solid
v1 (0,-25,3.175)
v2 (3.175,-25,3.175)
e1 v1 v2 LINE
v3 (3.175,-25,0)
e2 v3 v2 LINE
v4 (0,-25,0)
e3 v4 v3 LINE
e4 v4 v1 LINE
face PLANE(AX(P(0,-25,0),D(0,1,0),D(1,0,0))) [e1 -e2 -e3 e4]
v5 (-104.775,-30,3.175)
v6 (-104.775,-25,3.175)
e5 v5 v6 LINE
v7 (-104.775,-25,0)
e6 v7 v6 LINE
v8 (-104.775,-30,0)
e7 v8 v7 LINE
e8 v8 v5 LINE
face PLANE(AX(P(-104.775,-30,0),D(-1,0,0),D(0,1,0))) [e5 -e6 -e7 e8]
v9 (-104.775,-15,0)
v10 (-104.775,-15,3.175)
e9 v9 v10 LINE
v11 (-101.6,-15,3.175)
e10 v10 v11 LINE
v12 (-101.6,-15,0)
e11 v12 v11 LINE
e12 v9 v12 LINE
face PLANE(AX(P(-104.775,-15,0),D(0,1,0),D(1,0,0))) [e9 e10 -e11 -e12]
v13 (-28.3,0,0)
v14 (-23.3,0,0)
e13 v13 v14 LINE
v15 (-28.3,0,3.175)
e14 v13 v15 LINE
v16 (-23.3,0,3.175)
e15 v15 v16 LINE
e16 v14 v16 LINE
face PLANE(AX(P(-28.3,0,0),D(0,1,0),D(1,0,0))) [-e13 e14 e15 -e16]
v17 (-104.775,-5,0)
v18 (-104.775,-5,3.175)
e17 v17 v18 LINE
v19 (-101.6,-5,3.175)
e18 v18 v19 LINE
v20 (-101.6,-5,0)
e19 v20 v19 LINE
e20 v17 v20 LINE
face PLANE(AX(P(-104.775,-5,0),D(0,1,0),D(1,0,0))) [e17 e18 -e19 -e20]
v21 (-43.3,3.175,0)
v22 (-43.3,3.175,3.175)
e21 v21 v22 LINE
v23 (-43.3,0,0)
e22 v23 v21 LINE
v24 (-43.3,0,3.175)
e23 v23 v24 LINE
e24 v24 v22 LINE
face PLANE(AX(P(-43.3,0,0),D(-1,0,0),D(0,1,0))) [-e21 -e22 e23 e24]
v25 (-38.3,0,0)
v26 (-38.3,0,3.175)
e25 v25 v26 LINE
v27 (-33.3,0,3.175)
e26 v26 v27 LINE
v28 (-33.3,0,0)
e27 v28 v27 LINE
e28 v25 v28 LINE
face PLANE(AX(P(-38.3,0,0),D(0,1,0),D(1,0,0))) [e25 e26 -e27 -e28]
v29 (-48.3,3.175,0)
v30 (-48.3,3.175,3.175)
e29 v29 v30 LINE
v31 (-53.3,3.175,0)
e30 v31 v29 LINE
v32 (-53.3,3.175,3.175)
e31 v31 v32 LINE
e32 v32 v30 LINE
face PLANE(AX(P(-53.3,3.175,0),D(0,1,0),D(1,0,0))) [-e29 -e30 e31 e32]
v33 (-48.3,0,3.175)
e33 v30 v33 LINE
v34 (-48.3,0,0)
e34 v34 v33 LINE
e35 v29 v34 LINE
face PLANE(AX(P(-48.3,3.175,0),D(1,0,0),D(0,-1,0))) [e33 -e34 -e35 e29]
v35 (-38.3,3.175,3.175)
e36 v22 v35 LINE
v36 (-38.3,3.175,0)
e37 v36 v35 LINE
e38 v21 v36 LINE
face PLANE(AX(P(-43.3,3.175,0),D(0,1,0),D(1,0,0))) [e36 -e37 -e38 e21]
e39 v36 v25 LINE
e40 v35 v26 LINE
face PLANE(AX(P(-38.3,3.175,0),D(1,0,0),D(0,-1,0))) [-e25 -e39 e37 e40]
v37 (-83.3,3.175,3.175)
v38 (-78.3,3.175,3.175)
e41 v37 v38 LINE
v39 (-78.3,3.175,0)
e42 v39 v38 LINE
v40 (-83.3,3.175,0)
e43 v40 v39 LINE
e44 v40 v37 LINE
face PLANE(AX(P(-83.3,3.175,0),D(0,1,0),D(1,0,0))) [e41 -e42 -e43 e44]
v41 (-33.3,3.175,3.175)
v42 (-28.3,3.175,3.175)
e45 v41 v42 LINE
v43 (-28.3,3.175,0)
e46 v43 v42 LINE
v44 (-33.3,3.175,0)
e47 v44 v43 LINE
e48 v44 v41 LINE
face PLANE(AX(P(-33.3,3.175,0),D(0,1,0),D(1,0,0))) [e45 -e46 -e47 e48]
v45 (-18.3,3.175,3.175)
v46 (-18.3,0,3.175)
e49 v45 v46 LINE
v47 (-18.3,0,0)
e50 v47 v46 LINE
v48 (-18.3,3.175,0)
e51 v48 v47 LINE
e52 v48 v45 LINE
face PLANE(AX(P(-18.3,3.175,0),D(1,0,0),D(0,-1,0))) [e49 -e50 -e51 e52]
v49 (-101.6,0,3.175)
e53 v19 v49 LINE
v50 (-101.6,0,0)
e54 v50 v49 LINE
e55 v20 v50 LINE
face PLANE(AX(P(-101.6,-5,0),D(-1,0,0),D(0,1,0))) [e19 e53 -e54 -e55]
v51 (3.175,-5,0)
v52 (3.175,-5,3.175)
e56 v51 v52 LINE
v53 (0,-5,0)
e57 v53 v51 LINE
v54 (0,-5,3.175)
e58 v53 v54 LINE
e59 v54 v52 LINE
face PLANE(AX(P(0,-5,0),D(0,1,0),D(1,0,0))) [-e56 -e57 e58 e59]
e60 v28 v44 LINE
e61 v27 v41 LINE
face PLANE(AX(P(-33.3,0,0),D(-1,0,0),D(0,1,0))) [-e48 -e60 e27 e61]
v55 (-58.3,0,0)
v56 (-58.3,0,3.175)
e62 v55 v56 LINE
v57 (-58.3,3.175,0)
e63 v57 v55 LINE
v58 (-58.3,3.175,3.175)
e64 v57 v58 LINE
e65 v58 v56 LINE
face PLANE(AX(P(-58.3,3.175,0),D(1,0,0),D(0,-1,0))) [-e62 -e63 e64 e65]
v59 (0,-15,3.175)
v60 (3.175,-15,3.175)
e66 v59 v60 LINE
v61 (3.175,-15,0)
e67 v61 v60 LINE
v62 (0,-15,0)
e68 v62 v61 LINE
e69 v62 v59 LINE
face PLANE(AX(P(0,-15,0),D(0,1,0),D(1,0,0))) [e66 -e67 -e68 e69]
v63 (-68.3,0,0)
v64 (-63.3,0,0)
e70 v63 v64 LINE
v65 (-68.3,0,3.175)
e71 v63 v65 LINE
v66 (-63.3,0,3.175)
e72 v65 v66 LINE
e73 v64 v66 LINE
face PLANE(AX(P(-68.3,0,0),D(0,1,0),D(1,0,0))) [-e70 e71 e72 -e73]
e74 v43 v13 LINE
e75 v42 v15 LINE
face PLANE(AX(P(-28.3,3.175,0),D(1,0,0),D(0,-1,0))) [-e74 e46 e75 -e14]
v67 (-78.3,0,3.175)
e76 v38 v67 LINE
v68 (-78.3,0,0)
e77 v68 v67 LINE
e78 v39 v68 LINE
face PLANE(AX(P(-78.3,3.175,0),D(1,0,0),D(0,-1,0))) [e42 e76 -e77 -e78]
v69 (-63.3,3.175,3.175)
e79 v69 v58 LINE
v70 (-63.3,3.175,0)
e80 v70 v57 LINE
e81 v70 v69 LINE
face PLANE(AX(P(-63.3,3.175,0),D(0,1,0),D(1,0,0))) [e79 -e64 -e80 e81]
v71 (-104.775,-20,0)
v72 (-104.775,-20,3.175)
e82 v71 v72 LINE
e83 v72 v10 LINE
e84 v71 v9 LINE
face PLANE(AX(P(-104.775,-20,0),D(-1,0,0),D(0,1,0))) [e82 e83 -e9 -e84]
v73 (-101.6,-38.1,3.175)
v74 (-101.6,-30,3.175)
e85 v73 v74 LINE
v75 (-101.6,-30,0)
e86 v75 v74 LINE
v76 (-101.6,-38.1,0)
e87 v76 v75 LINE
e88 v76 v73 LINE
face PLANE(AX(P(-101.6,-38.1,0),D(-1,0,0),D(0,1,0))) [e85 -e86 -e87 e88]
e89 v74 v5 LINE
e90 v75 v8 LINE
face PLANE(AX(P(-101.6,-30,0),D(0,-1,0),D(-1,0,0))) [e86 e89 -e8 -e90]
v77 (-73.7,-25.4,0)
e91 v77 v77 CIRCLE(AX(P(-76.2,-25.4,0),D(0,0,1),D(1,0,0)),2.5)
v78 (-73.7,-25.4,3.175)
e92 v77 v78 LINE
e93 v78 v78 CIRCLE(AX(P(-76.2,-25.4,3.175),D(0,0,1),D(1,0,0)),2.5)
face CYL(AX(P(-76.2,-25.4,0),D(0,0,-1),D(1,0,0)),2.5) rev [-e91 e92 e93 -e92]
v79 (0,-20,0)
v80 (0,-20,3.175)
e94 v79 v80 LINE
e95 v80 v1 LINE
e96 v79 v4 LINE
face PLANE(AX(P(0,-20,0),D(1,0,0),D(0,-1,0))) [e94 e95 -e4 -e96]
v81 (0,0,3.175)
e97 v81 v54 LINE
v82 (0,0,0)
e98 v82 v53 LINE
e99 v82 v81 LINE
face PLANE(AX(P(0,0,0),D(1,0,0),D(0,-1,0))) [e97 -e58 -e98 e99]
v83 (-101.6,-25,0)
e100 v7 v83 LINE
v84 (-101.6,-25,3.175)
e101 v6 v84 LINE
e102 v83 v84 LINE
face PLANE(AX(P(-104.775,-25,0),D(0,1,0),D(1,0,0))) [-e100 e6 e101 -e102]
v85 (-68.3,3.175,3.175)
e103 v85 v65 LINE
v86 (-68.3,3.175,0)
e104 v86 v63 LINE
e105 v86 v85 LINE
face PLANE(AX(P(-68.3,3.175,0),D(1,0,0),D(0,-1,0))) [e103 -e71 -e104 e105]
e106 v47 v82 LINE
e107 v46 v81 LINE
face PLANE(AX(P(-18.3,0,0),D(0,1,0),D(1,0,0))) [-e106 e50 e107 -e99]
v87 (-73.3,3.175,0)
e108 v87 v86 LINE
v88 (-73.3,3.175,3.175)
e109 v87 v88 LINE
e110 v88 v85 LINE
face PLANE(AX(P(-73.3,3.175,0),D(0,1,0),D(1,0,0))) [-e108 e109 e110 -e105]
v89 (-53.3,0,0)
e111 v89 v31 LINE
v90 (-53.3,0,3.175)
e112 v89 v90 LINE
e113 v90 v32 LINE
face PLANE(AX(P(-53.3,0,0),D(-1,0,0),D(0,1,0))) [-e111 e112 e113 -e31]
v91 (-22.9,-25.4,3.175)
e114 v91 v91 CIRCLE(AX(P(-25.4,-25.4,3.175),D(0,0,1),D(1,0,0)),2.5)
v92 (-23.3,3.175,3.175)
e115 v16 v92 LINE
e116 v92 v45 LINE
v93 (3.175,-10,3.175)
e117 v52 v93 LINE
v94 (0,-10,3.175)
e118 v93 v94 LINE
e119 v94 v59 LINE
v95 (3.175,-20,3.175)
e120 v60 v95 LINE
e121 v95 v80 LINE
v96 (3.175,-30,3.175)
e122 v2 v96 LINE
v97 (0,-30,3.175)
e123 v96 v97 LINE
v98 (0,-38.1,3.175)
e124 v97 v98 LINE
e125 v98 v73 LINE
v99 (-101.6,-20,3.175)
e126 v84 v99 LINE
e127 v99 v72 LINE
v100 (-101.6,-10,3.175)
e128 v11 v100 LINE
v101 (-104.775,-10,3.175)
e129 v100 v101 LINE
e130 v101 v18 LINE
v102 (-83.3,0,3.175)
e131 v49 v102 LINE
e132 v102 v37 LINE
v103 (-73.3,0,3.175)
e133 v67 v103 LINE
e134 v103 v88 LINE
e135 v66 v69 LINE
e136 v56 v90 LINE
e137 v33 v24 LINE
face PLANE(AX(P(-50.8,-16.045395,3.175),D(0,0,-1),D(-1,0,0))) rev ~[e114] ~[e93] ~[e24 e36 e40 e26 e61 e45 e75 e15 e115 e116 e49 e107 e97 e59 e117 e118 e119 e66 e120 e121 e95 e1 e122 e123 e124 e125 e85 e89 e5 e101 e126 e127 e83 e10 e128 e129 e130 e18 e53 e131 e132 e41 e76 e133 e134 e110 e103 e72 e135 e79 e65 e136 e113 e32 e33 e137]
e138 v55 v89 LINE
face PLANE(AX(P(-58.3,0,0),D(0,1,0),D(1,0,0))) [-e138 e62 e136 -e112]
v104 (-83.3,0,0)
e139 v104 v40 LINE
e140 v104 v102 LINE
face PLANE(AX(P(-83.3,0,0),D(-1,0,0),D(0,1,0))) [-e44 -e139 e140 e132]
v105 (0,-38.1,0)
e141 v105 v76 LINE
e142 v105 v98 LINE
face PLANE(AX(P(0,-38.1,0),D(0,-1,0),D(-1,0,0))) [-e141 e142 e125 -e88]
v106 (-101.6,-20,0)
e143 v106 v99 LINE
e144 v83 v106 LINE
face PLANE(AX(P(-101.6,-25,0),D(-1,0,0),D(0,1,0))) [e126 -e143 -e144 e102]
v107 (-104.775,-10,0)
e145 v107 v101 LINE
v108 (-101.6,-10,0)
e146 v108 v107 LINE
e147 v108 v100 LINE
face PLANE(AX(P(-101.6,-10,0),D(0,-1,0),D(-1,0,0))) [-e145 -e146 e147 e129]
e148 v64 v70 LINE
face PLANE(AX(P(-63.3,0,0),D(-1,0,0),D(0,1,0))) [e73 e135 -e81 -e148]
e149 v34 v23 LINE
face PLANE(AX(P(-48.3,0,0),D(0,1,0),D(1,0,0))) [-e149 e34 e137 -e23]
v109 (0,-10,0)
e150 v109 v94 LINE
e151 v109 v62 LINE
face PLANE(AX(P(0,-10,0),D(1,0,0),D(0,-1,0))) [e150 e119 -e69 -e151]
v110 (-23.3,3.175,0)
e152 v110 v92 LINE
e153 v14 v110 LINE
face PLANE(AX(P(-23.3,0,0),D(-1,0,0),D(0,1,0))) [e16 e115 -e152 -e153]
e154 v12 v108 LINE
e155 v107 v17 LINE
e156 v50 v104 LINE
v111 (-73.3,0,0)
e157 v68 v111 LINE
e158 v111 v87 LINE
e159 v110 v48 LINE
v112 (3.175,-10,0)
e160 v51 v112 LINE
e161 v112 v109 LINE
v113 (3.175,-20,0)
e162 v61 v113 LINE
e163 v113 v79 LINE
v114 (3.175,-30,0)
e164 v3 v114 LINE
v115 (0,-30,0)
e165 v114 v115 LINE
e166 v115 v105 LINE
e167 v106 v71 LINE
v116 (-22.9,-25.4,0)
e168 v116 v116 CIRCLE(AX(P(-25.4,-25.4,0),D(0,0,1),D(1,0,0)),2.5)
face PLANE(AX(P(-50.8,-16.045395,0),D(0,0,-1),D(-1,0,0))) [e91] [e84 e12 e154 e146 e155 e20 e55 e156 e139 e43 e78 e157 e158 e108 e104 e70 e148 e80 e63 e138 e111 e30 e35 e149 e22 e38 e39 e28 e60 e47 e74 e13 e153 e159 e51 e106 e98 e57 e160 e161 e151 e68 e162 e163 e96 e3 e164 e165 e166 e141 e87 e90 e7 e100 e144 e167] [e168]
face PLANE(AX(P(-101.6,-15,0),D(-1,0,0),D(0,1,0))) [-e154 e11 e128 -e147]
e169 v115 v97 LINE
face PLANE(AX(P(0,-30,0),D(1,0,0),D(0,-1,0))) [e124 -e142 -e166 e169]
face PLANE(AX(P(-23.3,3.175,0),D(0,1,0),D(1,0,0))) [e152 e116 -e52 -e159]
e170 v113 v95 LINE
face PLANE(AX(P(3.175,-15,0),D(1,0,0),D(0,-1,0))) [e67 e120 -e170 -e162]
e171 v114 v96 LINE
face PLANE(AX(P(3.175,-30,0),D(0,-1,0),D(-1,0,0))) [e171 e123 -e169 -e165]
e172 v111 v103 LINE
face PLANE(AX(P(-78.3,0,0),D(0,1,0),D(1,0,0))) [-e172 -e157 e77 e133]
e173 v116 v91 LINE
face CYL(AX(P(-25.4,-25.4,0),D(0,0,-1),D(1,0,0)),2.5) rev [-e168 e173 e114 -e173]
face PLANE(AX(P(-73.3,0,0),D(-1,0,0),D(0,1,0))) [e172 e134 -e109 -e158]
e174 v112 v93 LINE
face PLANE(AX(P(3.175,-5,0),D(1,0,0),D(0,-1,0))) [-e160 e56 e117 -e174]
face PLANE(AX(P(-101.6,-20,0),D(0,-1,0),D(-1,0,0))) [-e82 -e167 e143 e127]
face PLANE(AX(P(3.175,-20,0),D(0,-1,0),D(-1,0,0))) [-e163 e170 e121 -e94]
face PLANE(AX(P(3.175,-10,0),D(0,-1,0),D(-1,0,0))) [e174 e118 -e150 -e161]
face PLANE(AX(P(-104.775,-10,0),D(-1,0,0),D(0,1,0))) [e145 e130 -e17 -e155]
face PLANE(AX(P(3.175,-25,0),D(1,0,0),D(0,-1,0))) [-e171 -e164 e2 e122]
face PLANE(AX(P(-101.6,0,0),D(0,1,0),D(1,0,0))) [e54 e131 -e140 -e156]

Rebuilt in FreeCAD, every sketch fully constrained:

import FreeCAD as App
import Part
import Sketcher

V = App.Vector

doc = App.newDocument("Part")
body = doc.addObject("PartDesign::Body", "Body")

sketch1 = body.newObject("Sketcher::SketchObject", "Sketch")
sketch1.AttachmentSupport = (doc.getObject("XY_Plane"), [""])
sketch1.MapMode = "FlatFace"
sketch1.addGeometry([
    Part.LineSegment(V(-83.3, 0, 0), V(-101.6, 0, 0)),
    Part.LineSegment(V(-101.6, 0, 0), V(-101.6, -5, 0)),
    Part.LineSegment(V(-101.6, -5, 0), V(-104.8, -5, 0)),
    Part.LineSegment(V(-104.8, -5, 0), V(-104.8, -10, 0)),
    Part.LineSegment(V(-104.8, -10, 0), V(-101.6, -10, 0)),
    Part.LineSegment(V(-101.6, -10, 0), V(-101.6, -15, 0)),
    Part.LineSegment(V(-101.6, -15, 0), V(-104.8, -15, 0)),
    Part.LineSegment(V(-104.8, -15, 0), V(-104.8, -20, 0)),
    Part.LineSegment(V(-104.8, -20, 0), V(-101.6, -20, 0)),
    Part.LineSegment(V(-101.6, -20, 0), V(-101.6, -25, 0)),
    Part.LineSegment(V(-101.6, -25, 0), V(-104.8, -25, 0)),
    Part.LineSegment(V(-104.8, -25, 0), V(-104.8, -30, 0)),
    Part.LineSegment(V(-104.8, -30, 0), V(-101.6, -30, 0)),
    Part.LineSegment(V(-101.6, -30, 0), V(-101.6, -38.1, 0)),
    Part.LineSegment(V(-101.6, -38.1, 0), V(0, -38.1, 0)),
    Part.LineSegment(V(0, -38.1, 0), V(0, -30, 0)),
    Part.LineSegment(V(0, -30, 0), V(3.2, -30, 0)),
    Part.LineSegment(V(3.2, -30, 0), V(3.2, -25, 0)),
    Part.LineSegment(V(3.2, -25, 0), V(0, -25, 0)),
    Part.LineSegment(V(0, -25, 0), V(0, -20, 0)),
    Part.LineSegment(V(0, -20, 0), V(3.2, -20, 0)),
    Part.LineSegment(V(3.2, -20, 0), V(3.2, -15, 0)),
    Part.LineSegment(V(3.2, -15, 0), V(0, -15, 0)),
    Part.LineSegment(V(0, -15, 0), V(0, -10, 0)),
    Part.LineSegment(V(0, -10, 0), V(3.2, -10, 0)),
    Part.LineSegment(V(3.2, -10, 0), V(3.2, -5, 0)),
    Part.LineSegment(V(3.2, -5, 0), V(0, -5, 0)),
    Part.LineSegment(V(0, -5, 0), V(0, 0, 0)),
    Part.LineSegment(V(0, 0, 0), V(-18.3, 0, 0)),
    Part.LineSegment(V(-18.3, 0, 0), V(-18.3, 3.2, 0)),
    Part.LineSegment(V(-18.3, 3.2, 0), V(-23.3, 3.2, 0)),
    Part.LineSegment(V(-23.3, 3.2, 0), V(-23.3, 0, 0)),
    Part.LineSegment(V(-23.3, 0, 0), V(-28.3, 0, 0)),
    Part.LineSegment(V(-28.3, 0, 0), V(-28.3, 3.2, 0)),
    Part.LineSegment(V(-28.3, 3.2, 0), V(-33.3, 3.2, 0)),
    Part.LineSegment(V(-33.3, 3.2, 0), V(-33.3, 0, 0)),
    Part.LineSegment(V(-33.3, 0, 0), V(-38.3, 0, 0)),
    Part.LineSegment(V(-38.3, 0, 0), V(-38.3, 3.2, 0)),
    Part.LineSegment(V(-38.3, 3.2, 0), V(-43.3, 3.2, 0)),
    Part.LineSegment(V(-43.3, 3.2, 0), V(-43.3, 0, 0)),
    Part.LineSegment(V(-43.3, 0, 0), V(-48.3, 0, 0)),
    Part.LineSegment(V(-48.3, 0, 0), V(-48.3, 3.2, 0)),
    Part.LineSegment(V(-48.3, 3.2, 0), V(-53.3, 3.2, 0)),
    Part.LineSegment(V(-53.3, 3.2, 0), V(-53.3, 0, 0)),
    Part.LineSegment(V(-53.3, 0, 0), V(-58.3, 0, 0)),
    Part.LineSegment(V(-58.3, 0, 0), V(-58.3, 3.2, 0)),
    Part.LineSegment(V(-58.3, 3.2, 0), V(-63.3, 3.2, 0)),
    Part.LineSegment(V(-63.3, 3.2, 0), V(-63.3, 0, 0)),
    Part.LineSegment(V(-63.3, 0, 0), V(-68.3, 0, 0)),
    Part.LineSegment(V(-68.3, 0, 0), V(-68.3, 3.2, 0)),
    Part.LineSegment(V(-68.3, 3.2, 0), V(-73.3, 3.2, 0)),
    Part.LineSegment(V(-73.3, 3.2, 0), V(-73.3, 0, 0)),
    Part.LineSegment(V(-73.3, 0, 0), V(-78.3, 0, 0)),
    Part.LineSegment(V(-78.3, 0, 0), V(-78.3, 3.2, 0)),
    Part.LineSegment(V(-78.3, 3.2, 0), V(-83.3, 3.2, 0)),
    Part.LineSegment(V(-83.3, 3.2, 0), V(-83.3, 0, 0)),
    Part.Circle(V(-25.4, -25.4, 0), V(0, 0, 1), 2.5),
    Part.Circle(V(-76.2, -25.4, 0), V(0, 0, 1), 2.5),
], False)
sketch1.addConstraint([
    Sketcher.Constraint("Coincident", 0, 2, 1, 1),
    Sketcher.Constraint("Coincident", 1, 2, 2, 1),
    Sketcher.Constraint("Coincident", 2, 2, 3, 1),
    Sketcher.Constraint("Coincident", 3, 2, 4, 1),
    Sketcher.Constraint("Coincident", 4, 2, 5, 1),
    Sketcher.Constraint("Coincident", 5, 2, 6, 1),
    Sketcher.Constraint("Coincident", 6, 2, 7, 1),
    Sketcher.Constraint("Coincident", 7, 2, 8, 1),
    Sketcher.Constraint("Coincident", 8, 2, 9, 1),
    Sketcher.Constraint("Coincident", 9, 2, 10, 1),
    Sketcher.Constraint("Coincident", 10, 2, 11, 1),
    Sketcher.Constraint("Coincident", 11, 2, 12, 1),
    Sketcher.Constraint("Coincident", 12, 2, 13, 1),
    Sketcher.Constraint("Coincident", 13, 2, 14, 1),
    Sketcher.Constraint("Coincident", 14, 2, 15, 1),
    Sketcher.Constraint("Coincident", 15, 2, 16, 1),
    Sketcher.Constraint("Coincident", 16, 2, 17, 1),
    Sketcher.Constraint("Coincident", 17, 2, 18, 1),
    Sketcher.Constraint("Coincident", 18, 2, 19, 1),
    Sketcher.Constraint("Coincident", 19, 2, 20, 1),
    Sketcher.Constraint("Coincident", 20, 2, 21, 1),
    Sketcher.Constraint("Coincident", 21, 2, 22, 1),
    Sketcher.Constraint("Coincident", 22, 2, 23, 1),
    Sketcher.Constraint("Coincident", 23, 2, 24, 1),
    Sketcher.Constraint("Coincident", 24, 2, 25, 1),
    Sketcher.Constraint("Coincident", 25, 2, 26, 1),
    Sketcher.Constraint("Coincident", 26, 2, 27, 1),
    Sketcher.Constraint("Coincident", 27, 2, 28, 1),
    Sketcher.Constraint("Coincident", 28, 2, 29, 1),
    Sketcher.Constraint("Coincident", 29, 2, 30, 1),
    Sketcher.Constraint("Coincident", 30, 2, 31, 1),
    Sketcher.Constraint("Coincident", 31, 2, 32, 1),
    Sketcher.Constraint("Coincident", 32, 2, 33, 1),
    Sketcher.Constraint("Coincident", 33, 2, 34, 1),
    Sketcher.Constraint("Coincident", 34, 2, 35, 1),
    Sketcher.Constraint("Coincident", 35, 2, 36, 1),
    Sketcher.Constraint("Coincident", 36, 2, 37, 1),
    Sketcher.Constraint("Coincident", 37, 2, 38, 1),
    Sketcher.Constraint("Coincident", 38, 2, 39, 1),
    Sketcher.Constraint("Coincident", 39, 2, 40, 1),
    Sketcher.Constraint("Coincident", 40, 2, 41, 1),
    Sketcher.Constraint("Coincident", 41, 2, 42, 1),
    Sketcher.Constraint("Coincident", 42, 2, 43, 1),
    Sketcher.Constraint("Coincident", 43, 2, 44, 1),
    Sketcher.Constraint("Coincident", 44, 2, 45, 1),
    Sketcher.Constraint("Coincident", 45, 2, 46, 1),
    Sketcher.Constraint("Coincident", 46, 2, 47, 1),
    Sketcher.Constraint("Coincident", 47, 2, 48, 1),
    Sketcher.Constraint("Coincident", 48, 2, 49, 1),
    Sketcher.Constraint("Coincident", 49, 2, 50, 1),
    Sketcher.Constraint("Coincident", 50, 2, 51, 1),
    Sketcher.Constraint("Coincident", 51, 2, 52, 1),
    Sketcher.Constraint("Coincident", 52, 2, 53, 1),
    Sketcher.Constraint("Coincident", 53, 2, 54, 1),
    Sketcher.Constraint("Coincident", 54, 2, 55, 1),
    Sketcher.Constraint("Coincident", 55, 2, 0, 1),
    Sketcher.Constraint("Horizontal", 0),
    Sketcher.Constraint("Vertical", 1),
    Sketcher.Constraint("Horizontal", 2),
    Sketcher.Constraint("Vertical", 3),
    Sketcher.Constraint("Horizontal", 4),
    Sketcher.Constraint("Vertical", 5),
    Sketcher.Constraint("Horizontal", 6),
    Sketcher.Constraint("Vertical", 7),
    Sketcher.Constraint("Horizontal", 8),
    Sketcher.Constraint("Vertical", 9),
    Sketcher.Constraint("Horizontal", 10),
    Sketcher.Constraint("Vertical", 11),
    Sketcher.Constraint("Horizontal", 12),
    Sketcher.Constraint("Vertical", 13),
    Sketcher.Constraint("Horizontal", 14),
    Sketcher.Constraint("Vertical", 15),
    Sketcher.Constraint("Horizontal", 16),
    Sketcher.Constraint("Vertical", 17),
    Sketcher.Constraint("Horizontal", 18),
    Sketcher.Constraint("Vertical", 19),
    Sketcher.Constraint("Horizontal", 20),
    Sketcher.Constraint("Vertical", 21),
    Sketcher.Constraint("Horizontal", 22),
    Sketcher.Constraint("Vertical", 23),
    Sketcher.Constraint("Horizontal", 24),
    Sketcher.Constraint("Vertical", 25),
    Sketcher.Constraint("Horizontal", 26),
    Sketcher.Constraint("Vertical", 27),
    Sketcher.Constraint("Horizontal", 28),
    Sketcher.Constraint("Vertical", 29),
    Sketcher.Constraint("Horizontal", 30),
    Sketcher.Constraint("Vertical", 31),
    Sketcher.Constraint("Horizontal", 32),
    Sketcher.Constraint("Vertical", 33),
    Sketcher.Constraint("Horizontal", 34),
    Sketcher.Constraint("Vertical", 35),
    Sketcher.Constraint("Horizontal", 36),
    Sketcher.Constraint("Vertical", 37),
    Sketcher.Constraint("Horizontal", 38),
    Sketcher.Constraint("Vertical", 39),
    Sketcher.Constraint("Horizontal", 40),
    Sketcher.Constraint("Vertical", 41),
    Sketcher.Constraint("Horizontal", 42),
    Sketcher.Constraint("Vertical", 43),
    Sketcher.Constraint("Horizontal", 44),
    Sketcher.Constraint("Vertical", 45),
    Sketcher.Constraint("Horizontal", 46),
    Sketcher.Constraint("Vertical", 47),
    Sketcher.Constraint("Horizontal", 48),
    Sketcher.Constraint("Vertical", 49),
    Sketcher.Constraint("Horizontal", 50),
    Sketcher.Constraint("Vertical", 51),
    Sketcher.Constraint("Horizontal", 52),
    Sketcher.Constraint("Vertical", 53),
    Sketcher.Constraint("Horizontal", 54),
    Sketcher.Constraint("Vertical", 55),
    Sketcher.Constraint("Coincident", 27, 2, -1, 1),
    Sketcher.Constraint("Equal", 56, 57),
    Sketcher.Constraint("PointOnObject", 0, 2, -1),
    Sketcher.Constraint("PointOnObject", 14, 2, -2),
    Sketcher.Constraint("PointOnObject", 18, 2, -2),
    Sketcher.Constraint("PointOnObject", 22, 2, -2),
    Sketcher.Constraint("PointOnObject", 31, 2, -1),
    Sketcher.Constraint("PointOnObject", 35, 2, -1),
    Sketcher.Constraint("PointOnObject", 39, 2, -1),
    Sketcher.Constraint("PointOnObject", 43, 2, -1),
    Sketcher.Constraint("PointOnObject", 47, 2, -1),
    Sketcher.Constraint("PointOnObject", 51, 2, -1),
    Sketcher.Constraint("Horizontal", 56, 3, 57, 3),
    Sketcher.Constraint("Horizontal", 12, 2, 15, 2),
    Sketcher.Constraint("Horizontal", 10, 2, 17, 2),
    Sketcher.Constraint("Horizontal", 8, 2, 19, 2),
    Sketcher.Constraint("Horizontal", 6, 2, 21, 2),
    Sketcher.Constraint("Horizontal", 4, 2, 23, 2),
    Sketcher.Constraint("Horizontal", 2, 2, 25, 2),
    Sketcher.Constraint("Horizontal", 30, 2, 33, 2),
    Sketcher.Constraint("Horizontal", 34, 2, 37, 2),
    Sketcher.Constraint("Horizontal", 38, 2, 41, 2),
    Sketcher.Constraint("Horizontal", 42, 2, 45, 2),
    Sketcher.Constraint("Horizontal", 46, 2, 49, 2),
    Sketcher.Constraint("Horizontal", 50, 2, 53, 2),
    Sketcher.Constraint("Vertical", 1, 2, 4, 2),
    Sketcher.Constraint("Vertical", 3, 2, 6, 2),
    Sketcher.Constraint("Vertical", 5, 2, 8, 2),
    Sketcher.Constraint("Vertical", 7, 2, 10, 2),
    Sketcher.Constraint("Vertical", 9, 2, 12, 2),
    Sketcher.Constraint("Vertical", 17, 2, 20, 2),
    Sketcher.Constraint("Vertical", 21, 2, 24, 2),
    Sketcher.Constraint("Equal", 12, 16),
    Sketcher.Constraint("Equal", 0, 28),
    Sketcher.Constraint("Equal", 30, 32),
    Sketcher.Constraint("Equal", 32, 34),
    Sketcher.Constraint("Equal", 34, 36),
    Sketcher.Constraint("Equal", 36, 38),
    Sketcher.Constraint("Equal", 38, 40),
    Sketcher.Constraint("Equal", 40, 42),
    Sketcher.Constraint("Equal", 42, 44),
    Sketcher.Constraint("Equal", 44, 46),
    Sketcher.Constraint("Equal", 46, 48),
    Sketcher.Constraint("Equal", 48, 50),
    Sketcher.Constraint("Equal", 50, 52),
    Sketcher.Constraint("Equal", 52, 54),
    Sketcher.Constraint("Equal", 54, 1),
    Sketcher.Constraint("Equal", 1, 3),
    Sketcher.Constraint("Equal", 3, 5),
    Sketcher.Constraint("Equal", 5, 7),
    Sketcher.Constraint("Equal", 7, 9),
    Sketcher.Constraint("Equal", 9, 11),
    Sketcher.Constraint("Equal", 26, 29),
    Sketcher.Constraint("Diameter", 56, 5.0),
    Sketcher.Constraint("DistanceX", 30, 2, 30, 1, 5.0),
    Sketcher.Constraint("DistanceX", 0, 2, 0, 1, 18.3),
    Sketcher.Constraint("DistanceY", 13, 2, 13, 1, 8.1),
    Sketcher.Constraint("DistanceX", 56, 3, -1, 1, 25.4),
    Sketcher.Constraint("DistanceY", 56, 3, -1, 1, 25.4),
    Sketcher.Constraint("DistanceX", 57, 3, -1, 1, 76.2),
    Sketcher.Constraint("DistanceX", 2, 2, 2, 1, 3.175),
])
pad1 = body.newObject("PartDesign::Pad", "Pad")
pad1.Profile = sketch1
pad1.Length = 3.175

doc.recompute()
